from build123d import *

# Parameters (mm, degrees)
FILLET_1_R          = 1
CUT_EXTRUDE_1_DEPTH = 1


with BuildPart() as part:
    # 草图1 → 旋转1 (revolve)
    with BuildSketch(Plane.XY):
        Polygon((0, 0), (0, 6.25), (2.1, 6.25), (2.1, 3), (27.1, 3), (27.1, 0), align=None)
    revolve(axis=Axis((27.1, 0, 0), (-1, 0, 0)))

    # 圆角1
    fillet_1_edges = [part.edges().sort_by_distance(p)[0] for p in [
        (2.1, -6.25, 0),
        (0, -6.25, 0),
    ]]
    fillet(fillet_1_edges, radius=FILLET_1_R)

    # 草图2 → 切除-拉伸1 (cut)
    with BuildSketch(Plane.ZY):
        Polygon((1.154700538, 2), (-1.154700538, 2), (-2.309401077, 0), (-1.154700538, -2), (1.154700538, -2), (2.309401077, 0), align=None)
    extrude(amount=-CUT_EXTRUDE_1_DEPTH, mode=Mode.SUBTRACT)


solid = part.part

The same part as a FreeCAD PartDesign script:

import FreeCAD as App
import Part
import Sketcher
Q = App.Units.Quantity


def edges_at(feature, points):
    """Names of the edges that pass closest to the given points."""
    edges = feature.Shape.Edges
    near = lambda p: min(range(len(edges)), key=lambda i: edges[i].distToShape(Part.Vertex(*p))[0])
    return sorted({f"Edge{near(p) + 1}" for p in points})


def add_polygon(sketch, points):
    """Adds a closed chain of lines whose ends are joined by coincident constraints."""
    first, n = sketch.GeometryCount, len(points)
    for a, b in zip(points, points[1:] + points[:1]):
        sketch.addGeometry(Part.LineSegment(App.Vector(*a, 0), App.Vector(*b, 0)), False)
    for i in range(n):
        sketch.addConstraint(Sketcher.Constraint("Coincident", first + i, 2, first + (i + 1) % n, 1))

doc = App.newDocument("Part")
body = doc.addObject("PartDesign::Body", "Body")

# Sketch on XY plane
sketch1 = body.newObject("Sketcher::SketchObject", "Sketch")
sketch1.AttachmentSupport = (doc.getObject("XY_Plane"), [""])
sketch1.MapMode = "FlatFace"
add_polygon(sketch1, [(0, 6.25), (0, 0), (27.1, 0), (27.1, 3), (2.1, 3), (2.1, 6.25)])  # lines 0-5
sketch1.addConstraint(Sketcher.Constraint("Vertical", 0))
sketch1.addConstraint(Sketcher.Constraint("Horizontal", 1))
sketch1.addConstraint(Sketcher.Constraint("Vertical", 2))
sketch1.addConstraint(Sketcher.Constraint("Horizontal", 3))
sketch1.addConstraint(Sketcher.Constraint("Vertical", 4))
sketch1.addConstraint(Sketcher.Constraint("Horizontal", 5))
sketch1.addConstraint(Sketcher.Constraint("Coincident", 0, 2, -1, 1))
sketch1.addConstraint(Sketcher.Constraint("DistanceX", 3, 2, 3, 1, 25.0))
sketch1.addConstraint(Sketcher.Constraint("DistanceY", 2, 1, 2, 2, 3.0))
sketch1.addConstraint(Sketcher.Constraint("DistanceX", 1, 1, 1, 2, 27.1))
sketch1.addConstraint(Sketcher.Constraint("DistanceY", 0, 2, 0, 1, 6.25))
revolution = body.newObject("PartDesign::Revolution", "Revolution")
revolution.Profile = sketch1
revolution.ReferenceAxis = (sketch1, ["H_Axis"])
revolution.Angle = 360
doc.recompute()

fillet = body.newObject("PartDesign::Fillet", "Fillet")
fillet.Base = (revolution, edges_at(revolution, [(2.1, -6.25, 0), (0, -6.25, 0)]))
fillet.Radius = 1

# Sketch on YZ plane
sketch2 = body.newObject("Sketcher::SketchObject", "Sketch001")
sketch2.AttachmentSupport = (doc.getObject("YZ_Plane"), [""])
sketch2.MapMode = "FlatFace"
add_polygon(sketch2, [(2, 1.154701), (2, -1.154701), (0, -2.309401), (-2, -1.154701), (-2, 1.154701), (0, 2.309401)])  # lines 0-5
sketch2.addConstraint(Sketcher.Constraint("Vertical", 0))
sketch2.addConstraint(Sketcher.Constraint("Vertical", 3))
sketch2.addConstraint(Sketcher.Constraint("Symmetric", 0, 2, 3, 2, -1, 1))
sketch2.addConstraint(Sketcher.Constraint("Symmetric", 1, 2, 4, 2, -1, 1))
sketch2.addConstraint(Sketcher.Constraint("PointOnObject", 1, 2, -2))
sketch2.addConstraint(Sketcher.Constraint("Parallel", 2, 5))
sketch2.addConstraint(Sketcher.Constraint("Horizontal", 0, 2, 2, 2))
sketch2.addConstraint(Sketcher.Constraint("Angle", 1, Q("-150 deg")))
sketch2.addConstraint(Sketcher.Constraint("DistanceX", -1, 1, 0, 2, 2.0))
sketch2.addConstraint(Sketcher.Constraint("DistanceY", 0, 2, 0, 1, 2.309401))
pocket1 = body.newObject("PartDesign::Pocket", "Pocket")
pocket1.Profile = sketch2
pocket1.Length = 1
pocket1.Reversed = True

doc.recompute()
